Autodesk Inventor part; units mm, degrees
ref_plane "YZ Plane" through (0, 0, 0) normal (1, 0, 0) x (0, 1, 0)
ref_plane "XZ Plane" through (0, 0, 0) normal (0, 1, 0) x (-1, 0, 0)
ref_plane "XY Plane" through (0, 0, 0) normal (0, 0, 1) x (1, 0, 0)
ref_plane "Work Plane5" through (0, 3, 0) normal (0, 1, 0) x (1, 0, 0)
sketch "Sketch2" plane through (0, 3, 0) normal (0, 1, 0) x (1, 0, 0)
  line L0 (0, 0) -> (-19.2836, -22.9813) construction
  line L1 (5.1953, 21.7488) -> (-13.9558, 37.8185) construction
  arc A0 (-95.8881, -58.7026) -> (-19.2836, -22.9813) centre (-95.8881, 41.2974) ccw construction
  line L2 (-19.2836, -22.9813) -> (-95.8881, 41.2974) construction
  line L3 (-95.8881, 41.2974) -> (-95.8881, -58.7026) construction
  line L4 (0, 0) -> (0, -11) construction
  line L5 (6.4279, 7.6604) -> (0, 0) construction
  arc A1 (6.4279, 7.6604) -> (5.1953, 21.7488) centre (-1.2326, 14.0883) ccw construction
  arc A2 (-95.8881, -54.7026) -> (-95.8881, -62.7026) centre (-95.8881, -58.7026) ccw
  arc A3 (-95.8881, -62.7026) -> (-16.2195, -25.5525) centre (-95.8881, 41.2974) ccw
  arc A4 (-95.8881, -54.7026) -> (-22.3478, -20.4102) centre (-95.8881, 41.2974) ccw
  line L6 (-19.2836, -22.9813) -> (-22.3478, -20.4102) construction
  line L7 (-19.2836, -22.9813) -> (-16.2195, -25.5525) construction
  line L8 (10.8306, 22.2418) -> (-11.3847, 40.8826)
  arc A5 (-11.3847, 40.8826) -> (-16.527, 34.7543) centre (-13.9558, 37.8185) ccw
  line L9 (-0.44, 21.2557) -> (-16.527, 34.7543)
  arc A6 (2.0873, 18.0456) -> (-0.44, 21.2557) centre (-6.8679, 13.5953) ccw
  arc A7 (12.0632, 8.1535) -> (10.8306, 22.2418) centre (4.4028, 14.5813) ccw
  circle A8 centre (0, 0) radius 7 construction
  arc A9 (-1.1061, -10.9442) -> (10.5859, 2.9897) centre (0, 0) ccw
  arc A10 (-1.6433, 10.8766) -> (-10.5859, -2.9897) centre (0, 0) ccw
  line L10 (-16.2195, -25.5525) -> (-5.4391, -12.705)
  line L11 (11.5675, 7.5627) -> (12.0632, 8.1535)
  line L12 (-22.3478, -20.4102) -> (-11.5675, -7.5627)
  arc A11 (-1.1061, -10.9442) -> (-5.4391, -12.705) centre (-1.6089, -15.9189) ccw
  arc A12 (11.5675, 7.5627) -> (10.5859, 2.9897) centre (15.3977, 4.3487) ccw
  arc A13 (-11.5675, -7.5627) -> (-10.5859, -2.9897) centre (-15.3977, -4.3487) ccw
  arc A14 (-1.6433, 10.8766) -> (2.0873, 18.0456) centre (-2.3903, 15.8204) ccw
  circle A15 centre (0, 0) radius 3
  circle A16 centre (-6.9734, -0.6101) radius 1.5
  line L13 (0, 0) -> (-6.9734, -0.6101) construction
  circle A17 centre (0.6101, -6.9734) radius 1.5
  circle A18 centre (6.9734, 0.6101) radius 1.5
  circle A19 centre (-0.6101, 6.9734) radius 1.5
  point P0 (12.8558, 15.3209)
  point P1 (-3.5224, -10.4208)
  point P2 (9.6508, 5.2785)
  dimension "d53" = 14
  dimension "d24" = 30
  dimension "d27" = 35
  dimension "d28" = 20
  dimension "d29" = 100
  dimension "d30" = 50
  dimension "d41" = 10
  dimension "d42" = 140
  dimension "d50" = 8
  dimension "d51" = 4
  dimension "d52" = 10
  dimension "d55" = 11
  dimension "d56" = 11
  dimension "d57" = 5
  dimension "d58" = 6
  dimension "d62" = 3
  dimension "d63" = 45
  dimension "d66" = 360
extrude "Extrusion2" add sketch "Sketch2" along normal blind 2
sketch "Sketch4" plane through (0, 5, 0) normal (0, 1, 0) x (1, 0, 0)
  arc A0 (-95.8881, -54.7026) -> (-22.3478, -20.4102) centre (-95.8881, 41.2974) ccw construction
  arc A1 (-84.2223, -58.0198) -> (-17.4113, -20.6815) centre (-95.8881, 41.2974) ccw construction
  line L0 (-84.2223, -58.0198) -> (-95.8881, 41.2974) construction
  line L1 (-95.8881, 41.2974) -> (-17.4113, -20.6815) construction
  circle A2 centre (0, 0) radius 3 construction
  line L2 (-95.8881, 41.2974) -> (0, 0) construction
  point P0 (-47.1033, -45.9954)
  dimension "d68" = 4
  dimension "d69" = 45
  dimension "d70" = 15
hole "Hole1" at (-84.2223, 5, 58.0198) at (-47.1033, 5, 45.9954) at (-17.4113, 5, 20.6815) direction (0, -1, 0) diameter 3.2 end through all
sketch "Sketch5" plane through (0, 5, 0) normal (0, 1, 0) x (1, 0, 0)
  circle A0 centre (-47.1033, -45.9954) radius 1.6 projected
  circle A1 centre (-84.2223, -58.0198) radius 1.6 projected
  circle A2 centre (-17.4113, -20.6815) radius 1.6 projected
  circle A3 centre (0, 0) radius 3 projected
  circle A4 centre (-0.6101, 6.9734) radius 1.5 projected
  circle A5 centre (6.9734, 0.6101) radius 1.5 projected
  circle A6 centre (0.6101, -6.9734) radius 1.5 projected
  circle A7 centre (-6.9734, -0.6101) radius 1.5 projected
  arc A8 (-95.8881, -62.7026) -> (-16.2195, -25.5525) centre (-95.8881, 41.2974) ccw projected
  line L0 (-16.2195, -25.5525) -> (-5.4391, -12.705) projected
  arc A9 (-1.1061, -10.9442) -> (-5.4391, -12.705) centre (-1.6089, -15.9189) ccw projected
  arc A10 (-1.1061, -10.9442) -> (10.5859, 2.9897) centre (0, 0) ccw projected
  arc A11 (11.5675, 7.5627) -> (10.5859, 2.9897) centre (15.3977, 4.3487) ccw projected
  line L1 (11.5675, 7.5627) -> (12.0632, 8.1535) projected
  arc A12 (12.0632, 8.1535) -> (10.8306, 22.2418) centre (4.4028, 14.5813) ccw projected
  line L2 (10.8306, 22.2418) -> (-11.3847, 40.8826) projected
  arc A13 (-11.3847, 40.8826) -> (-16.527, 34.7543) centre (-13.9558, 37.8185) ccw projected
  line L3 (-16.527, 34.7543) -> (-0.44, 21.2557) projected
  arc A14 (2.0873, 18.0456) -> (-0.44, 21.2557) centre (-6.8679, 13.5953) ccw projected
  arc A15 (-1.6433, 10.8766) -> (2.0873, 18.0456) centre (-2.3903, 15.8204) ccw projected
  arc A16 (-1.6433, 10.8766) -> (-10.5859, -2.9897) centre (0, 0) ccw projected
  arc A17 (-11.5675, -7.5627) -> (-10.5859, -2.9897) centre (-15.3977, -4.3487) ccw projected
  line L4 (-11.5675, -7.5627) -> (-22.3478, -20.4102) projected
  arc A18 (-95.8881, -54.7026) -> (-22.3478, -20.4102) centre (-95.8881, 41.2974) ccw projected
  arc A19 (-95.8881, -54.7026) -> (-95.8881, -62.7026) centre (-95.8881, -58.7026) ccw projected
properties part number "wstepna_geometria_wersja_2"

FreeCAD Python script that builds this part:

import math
import FreeCAD as App
import Part
import Sketcher
from FreeCAD import Vector
Q = App.Units.Quantity

doc = App.newDocument("Part")
body = doc.addObject("PartDesign::Body", "Body")

sketch1 = body.newObject("Sketcher::SketchObject", "Sketch")
sketch1.AttachmentSupport = (doc.getObject("XZ_Plane"), [""])
sketch1.MapMode = "FlatFace"
sketch1.AttachmentOffset = App.Placement(Vector(0, 0, -3), App.Rotation())
sketch1.addGeometry([
    Part.ArcOfCircle(Part.Circle(Vector(-95.9, -41.3, 0), Vector(0, 0, 1), 96), math.radians(40), math.radians(90)),
    Part.ArcOfCircle(Part.Circle(Vector(-95.9, 58.7, 0), Vector(0, 0, 1), 4), math.radians(90), math.radians(270)),
    Part.ArcOfCircle(Part.Circle(Vector(-95.9, -41.3, 0), Vector(0, 0, 1), 104), math.radians(40), math.radians(90)),
    Part.LineSegment(Vector(-16.2, 25.6, 0), Vector(-5.4, 12.7, 0)),
    Part.ArcOfCircle(Part.Circle(Vector(-1.6, 15.9, 0), Vector(0, 0, 1), 5), math.radians(-140), math.radians(-84)),
    Part.ArcOfCircle(Part.Circle(Vector(0, 0, 0), Vector(0, 0, 1), 11), math.radians(-16), math.radians(96)),
    Part.ArcOfCircle(Part.Circle(Vector(15.4, -4.3, 0), Vector(0, 0, 1), 5), math.radians(164), math.radians(220)),
    Part.LineSegment(Vector(11.6, -7.6, 0), Vector(12.1, -8.2, 0)),
    Part.ArcOfCircle(Part.Circle(Vector(4.4, -14.6, 0), Vector(0, 0, 1), 10), math.radians(-50), math.radians(40)),
    Part.LineSegment(Vector(10.8, -22.2, 0), Vector(-11.4, -40.9, 0)),
    Part.ArcOfCircle(Part.Circle(Vector(-14, -37.8, 0), Vector(0, 0, 1), 4), math.radians(130), math.radians(310)),
    Part.LineSegment(Vector(-16.5, -34.8, 0), Vector(-0.4, -21.3, 0)),
    Part.ArcOfCircle(Part.Circle(Vector(-6.9, -13.6, 0), Vector(0, 0, 1), 10), math.radians(-50), math.radians(-26)),
    Part.ArcOfCircle(Part.Circle(Vector(-2.4, -15.8, 0), Vector(0, 0, 1), 5), math.radians(-26), math.radians(81)),
    Part.ArcOfCircle(Part.Circle(Vector(0, 0, 0), Vector(0, 0, 1), 11), math.radians(164), math.radians(261)),
    Part.ArcOfCircle(Part.Circle(Vector(-15.4, 4.3, 0), Vector(0, 0, 1), 5), math.radians(-16), math.radians(40)),
    Part.LineSegment(Vector(-11.6, 7.6, 0), Vector(-22.3, 20.4, 0)),
    Part.Circle(Vector(-7, 0.6, 0), Vector(0, 0, 1), 1.5),
    Part.Circle(Vector(0, 0, 0), Vector(0, 0, 1), 3),
    Part.Circle(Vector(0.6, 7, 0), Vector(0, 0, 1), 1.5),
    Part.Circle(Vector(7, -0.6, 0), Vector(0, 0, 1), 1.5),
    Part.Circle(Vector(-0.6, -7, 0), Vector(0, 0, 1), 1.5),
], False)
sketch1.addConstraint([
    Sketcher.Constraint("Tangent", 0, 2, 1, 2),
    Sketcher.Constraint("Tangent", 1, 1, 2, 2),
    Sketcher.Constraint("Tangent", 2, 1, 3, 1),
    Sketcher.Constraint("Tangent", 3, 2, 4, 1),
    Sketcher.Constraint("Tangent", 4, 2, 5, 2),
    Sketcher.Constraint("Tangent", 5, 1, 6, 1),
    Sketcher.Constraint("Tangent", 6, 2, 7, 1),
    Sketcher.Constraint("Tangent", 7, 2, 8, 2),
    Sketcher.Constraint("Tangent", 8, 1, 9, 1),
    Sketcher.Constraint("Tangent", 9, 2, 10, 2),
    Sketcher.Constraint("Tangent", 10, 1, 11, 1),
    Sketcher.Constraint("Tangent", 11, 2, 12, 1),
    Sketcher.Constraint("Tangent", 12, 2, 13, 1),
    Sketcher.Constraint("Tangent", 13, 2, 14, 2),
    Sketcher.Constraint("Tangent", 14, 1, 15, 1),
    Sketcher.Constraint("Tangent", 15, 2, 16, 1),
    Sketcher.Constraint("Tangent", 16, 2, 0, 1),
    Sketcher.Constraint("Coincident", 5, 3, -1, 1),
    Sketcher.Constraint("Coincident", 14, 3, -1, 1),
    Sketcher.Constraint("Coincident", 18, 3, -1, 1),
    Sketcher.Constraint("Coincident", 2, 3, 0, 3),
    Sketcher.Constraint("Equal", 4, 6),
    Sketcher.Constraint("Equal", 1, 10),
    Sketcher.Constraint("Equal", 6, 13),
    Sketcher.Constraint("Equal", 5, 14),
    Sketcher.Constraint("Equal", 13, 15),
    Sketcher.Constraint("Equal", 17, 19),
    Sketcher.Constraint("Equal", 19, 20),
    Sketcher.Constraint("Equal", 20, 21),
    Sketcher.Constraint("Symmetric", 17, 3, 20, 3, -1, 1),
    Sketcher.Constraint("Symmetric", 19, 3, 21, 3, -1, 1),
    Sketcher.Constraint("Symmetric", 6, 2, 15, 2, -1, 1),
    Sketcher.Constraint("Parallel", 3, 7),
    Sketcher.Constraint("Perpendicular", 7, 9),
    Sketcher.Constraint("Parallel", 9, 11),
    Sketcher.Constraint("Vertical", 0, 3, 1, 3),
    Sketcher.Constraint("Equal", 3, 16),
    Sketcher.Constraint("Diameter", 17, Q("3 mm")),
    Sketcher.Constraint("Diameter", 18, Q("6 mm")),
    Sketcher.Constraint("Radius", 1, Q("4 mm")),
    Sketcher.Constraint("Radius", 4, Q("5 mm")),
    Sketcher.Constraint("Radius", 5, Q("11 mm")),
    Sketcher.Constraint("Radius", 8, Q("10 mm")),
    Sketcher.Constraint("Angle", 3, Q("-49.9998 deg")),
    Sketcher.Constraint("Radius", 0, Q("96 mm")),
    Sketcher.Constraint("Distance", 9, Q("29 mm")),
    Sketcher.Constraint("Distance", 11, Q("21 mm")),
    Sketcher.Constraint("Radius", 12, Q("9.9987 mm")),
    Sketcher.Constraint("DistanceY", -1, 1, 17, 3, Q("0.61 mm")),
    Sketcher.Constraint("DistanceX", -1, 1, 19, 3, Q("0.61 mm")),
    Sketcher.Constraint("DistanceX", 11, 2, -1, 1, Q("0.44 mm")),
    Sketcher.Constraint("DistanceX", 16, 2, 15, 3, Q("6.95 mm")),
    Sketcher.Constraint("DistanceY", 13, 3, 21, 3, Q("8.847 mm")),
    Sketcher.Constraint("DistanceX", 2, 1, 17, 3, Q("9.246 mm")),
])
pad1 = body.newObject("PartDesign::Pad", "Pad")
pad1.Profile = sketch1
pad1.Length = 2
pad1.Reversed = True

sketch2 = body.newObject("Sketcher::SketchObject", "Sketch001")
sketch2.AttachmentSupport = (doc.getObject("XZ_Plane"), [""])
sketch2.MapMode = "FlatFace"
sketch2.AttachmentOffset = App.Placement(Vector(0, 0, -5), App.Rotation())
sketch2.addGeometry([
    Part.Circle(Vector(-84.2, 58, 0), Vector(0, 0, 1), 1.6),
    Part.Circle(Vector(-47.1, 46, 0), Vector(0, 0, 1), 1.6),
    Part.Circle(Vector(-17.4, 20.7, 0), Vector(0, 0, 1), 1.6),
], False)
sketch2.addConstraint([
    Sketcher.Constraint("Equal", 0, 1),
    Sketcher.Constraint("Equal", 1, 2),
    Sketcher.Constraint("Diameter", 0, Q("3.2 mm")),
    Sketcher.Constraint("DistanceX", 0, 3, 1, 3, Q("37.119 mm")),
    Sketcher.Constraint("DistanceX", 1, 3, 2, 3, Q("29.692 mm")),
    Sketcher.Constraint("DistanceY", 2, 3, 1, 3, Q("25.314 mm")),
    Sketcher.Constraint("DistanceX", 0, 3, -1, 1, Q("84.2223 mm")),
    Sketcher.Constraint("DistanceY", -1, 1, 0, 3, Q("58.0198 mm")),
    Sketcher.Constraint("DistanceY", -1, 1, 1, 3, Q("45.9954 mm")),
])
doc.recompute()
hole = body.newObject("PartDesign::Hole", "Hole")
hole.Profile = sketch2
hole.ThreadType = "None"
hole.Diameter = 3.2
hole.DepthType = "ThroughAll"
hole.Reversed = True

doc.recompute()
